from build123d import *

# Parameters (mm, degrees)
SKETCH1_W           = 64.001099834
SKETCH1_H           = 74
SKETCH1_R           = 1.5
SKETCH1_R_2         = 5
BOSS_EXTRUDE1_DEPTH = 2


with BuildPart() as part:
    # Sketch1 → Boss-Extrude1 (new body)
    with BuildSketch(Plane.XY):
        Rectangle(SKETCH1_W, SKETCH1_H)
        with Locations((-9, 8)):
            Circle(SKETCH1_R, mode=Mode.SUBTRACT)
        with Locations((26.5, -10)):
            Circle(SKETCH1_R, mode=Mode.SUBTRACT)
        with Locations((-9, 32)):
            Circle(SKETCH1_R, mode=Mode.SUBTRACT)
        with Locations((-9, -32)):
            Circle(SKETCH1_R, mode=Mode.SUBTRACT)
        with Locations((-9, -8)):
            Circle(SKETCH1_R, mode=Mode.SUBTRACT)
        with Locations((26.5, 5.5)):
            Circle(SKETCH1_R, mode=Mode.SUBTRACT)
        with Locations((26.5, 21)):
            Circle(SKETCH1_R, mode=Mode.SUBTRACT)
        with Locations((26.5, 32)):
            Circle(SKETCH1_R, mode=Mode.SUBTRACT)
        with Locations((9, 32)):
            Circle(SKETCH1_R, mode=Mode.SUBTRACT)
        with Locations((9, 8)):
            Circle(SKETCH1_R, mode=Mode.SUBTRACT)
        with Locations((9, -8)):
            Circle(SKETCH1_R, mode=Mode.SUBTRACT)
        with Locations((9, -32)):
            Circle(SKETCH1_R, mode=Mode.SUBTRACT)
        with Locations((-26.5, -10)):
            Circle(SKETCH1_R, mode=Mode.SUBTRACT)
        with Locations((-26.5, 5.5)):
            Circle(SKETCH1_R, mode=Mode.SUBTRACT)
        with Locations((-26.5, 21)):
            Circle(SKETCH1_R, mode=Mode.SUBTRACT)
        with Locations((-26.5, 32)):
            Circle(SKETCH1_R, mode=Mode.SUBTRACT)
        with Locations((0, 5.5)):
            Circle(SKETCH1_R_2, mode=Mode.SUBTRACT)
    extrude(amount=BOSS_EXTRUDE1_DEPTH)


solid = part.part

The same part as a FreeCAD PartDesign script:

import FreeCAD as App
import Part
import Sketcher

V = App.Vector
Q = App.Units.Quantity


def add_polygon(sketch, points):
    """Adds a closed chain of lines whose ends are joined by coincident constraints."""
    first, n = sketch.GeometryCount, len(points)
    for a, b in zip(points, points[1:] + points[:1]):
        sketch.addGeometry(Part.LineSegment(App.Vector(*a, 0), App.Vector(*b, 0)), False)
    for i in range(n):
        sketch.addConstraint(Sketcher.Constraint("Coincident", first + i, 2, first + (i + 1) % n, 1))

doc = App.newDocument("Part")
body = doc.addObject("PartDesign::Body", "Body")

# Sketch on XY plane
sketch1 = body.newObject("Sketcher::SketchObject", "Sketch")
sketch1.AttachmentSupport = (doc.getObject("XY_Plane"), [""])
sketch1.MapMode = "FlatFace"
add_polygon(sketch1, [(-32.00055, 37), (-32.00055, -37), (32.00055, -37), (32.00055, 37)])  # lines 0-3
sketch1.addGeometry(Part.Circle(V(-9, -32, 0), V(0, 0, 1), 1.5), False)  # 4
sketch1.addGeometry(Part.Circle(V(-26.5, -10, 0), V(0, 0, 1), 1.5), False)  # 5
sketch1.addGeometry(Part.Circle(V(-9, -8, 0), V(0, 0, 1), 1.5), False)  # 6
sketch1.addGeometry(Part.Circle(V(9, -32, 0), V(0, 0, 1), 1.5), False)  # 7
sketch1.addGeometry(Part.Circle(V(9, -8, 0), V(0, 0, 1), 1.5), False)  # 8
sketch1.addGeometry(Part.Circle(V(26.5, -10, 0), V(0, 0, 1), 1.5), False)  # 9
sketch1.addGeometry(Part.Circle(V(-26.5, 5.5, 0), V(0, 0, 1), 1.5), False)  # 10
sketch1.addGeometry(Part.Circle(V(-9, 8, 0), V(0, 0, 1), 1.5), False)  # 11
sketch1.addGeometry(Part.Circle(V(-26.5, 21, 0), V(0, 0, 1), 1.5), False)  # 12
sketch1.addGeometry(Part.Circle(V(-26.5, 32, 0), V(0, 0, 1), 1.5), False)  # 13
sketch1.addGeometry(Part.Circle(V(-9, 32, 0), V(0, 0, 1), 1.5), False)  # 14
sketch1.addGeometry(Part.Circle(V(0, 5.5, 0), V(0, 0, 1), 5), False)  # 15
sketch1.addGeometry(Part.Circle(V(9, 8, 0), V(0, 0, 1), 1.5), False)  # 16
sketch1.addGeometry(Part.Circle(V(26.5, 5.5, 0), V(0, 0, 1), 1.5), False)  # 17
sketch1.addGeometry(Part.Circle(V(9, 32, 0), V(0, 0, 1), 1.5), False)  # 18
sketch1.addGeometry(Part.Circle(V(26.5, 21, 0), V(0, 0, 1), 1.5), False)  # 19
sketch1.addGeometry(Part.Circle(V(26.5, 32, 0), V(0, 0, 1), 1.5), False)  # 20
sketch1.addConstraint(Sketcher.Constraint("Vertical", 0))
sketch1.addConstraint(Sketcher.Constraint("Horizontal", 1))
sketch1.addConstraint(Sketcher.Constraint("Vertical", 2))
sketch1.addConstraint(Sketcher.Constraint("Horizontal", 3))
sketch1.addConstraint(Sketcher.Constraint("Equal", 4, 5))
sketch1.addConstraint(Sketcher.Constraint("Equal", 5, 6))
sketch1.addConstraint(Sketcher.Constraint("Equal", 6, 7))
sketch1.addConstraint(Sketcher.Constraint("Equal", 7, 8))
sketch1.addConstraint(Sketcher.Constraint("Equal", 8, 9))
sketch1.addConstraint(Sketcher.Constraint("Equal", 9, 10))
sketch1.addConstraint(Sketcher.Constraint("Equal", 10, 11))
sketch1.addConstraint(Sketcher.Constraint("Equal", 11, 12))
sketch1.addConstraint(Sketcher.Constraint("Equal", 12, 13))
sketch1.addConstraint(Sketcher.Constraint("Equal", 13, 14))
sketch1.addConstraint(Sketcher.Constraint("Equal", 14, 16))
sketch1.addConstraint(Sketcher.Constraint("Equal", 16, 17))
sketch1.addConstraint(Sketcher.Constraint("Equal", 17, 18))
sketch1.addConstraint(Sketcher.Constraint("Equal", 18, 19))
sketch1.addConstraint(Sketcher.Constraint("Equal", 19, 20))
sketch1.addConstraint(Sketcher.Constraint("Symmetric", 8, 3, 11, 3, -1, 1))
sketch1.addConstraint(Sketcher.Constraint("Symmetric", 7, 3, 14, 3, -1, 1))
sketch1.addConstraint(Sketcher.Constraint("Symmetric", 6, 3, 16, 3, -1, 1))
sketch1.addConstraint(Sketcher.Constraint("Symmetric", 4, 3, 18, 3, -1, 1))
sketch1.addConstraint(Sketcher.Constraint("Symmetric", 0, 2, 2, 2, -1, 1))
sketch1.addConstraint(Sketcher.Constraint("Symmetric", 4, 3, 7, 3, -2))
sketch1.addConstraint(Sketcher.Constraint("Symmetric", 6, 3, 8, 3, -2))
sketch1.addConstraint(Sketcher.Constraint("Symmetric", 5, 3, 9, 3, -2))
sketch1.addConstraint(Sketcher.Constraint("Symmetric", 10, 3, 17, 3, -2))
sketch1.addConstraint(Sketcher.Constraint("Symmetric", 12, 3, 19, 3, -2))
sketch1.addConstraint(Sketcher.Constraint("Symmetric", 13, 3, 20, 3, -2))
sketch1.addConstraint(Sketcher.Constraint("PointOnObject", 15, 3, -2))
sketch1.addConstraint(Sketcher.Constraint("Horizontal", 13, 3, 14, 3))
sketch1.addConstraint(Sketcher.Constraint("Horizontal", 10, 3, 15, 3))
sketch1.addConstraint(Sketcher.Constraint("Vertical", 4, 3, 6, 3))
sketch1.addConstraint(Sketcher.Constraint("Vertical", 5, 3, 10, 3))
sketch1.addConstraint(Sketcher.Constraint("Vertical", 10, 3, 12, 3))
sketch1.addConstraint(Sketcher.Constraint("Vertical", 12, 3, 13, 3))
sketch1.addConstraint(Sketcher.Constraint("Diameter", 4, Q("3 mm")))
sketch1.addConstraint(Sketcher.Constraint("Diameter", 15, Q("10 mm")))
sketch1.addConstraint(Sketcher.Constraint("DistanceY", 0, 2, 0, 1, Q("74 mm")))
sketch1.addConstraint(Sketcher.Constraint("DistanceX", 4, 3, -1, 1, Q("9 mm")))
sketch1.addConstraint(Sketcher.Constraint("DistanceY", 4, 3, -1, 1, Q("32 mm")))
sketch1.addConstraint(Sketcher.Constraint("DistanceY", 5, 3, -1, 1, Q("10 mm")))
sketch1.addConstraint(Sketcher.Constraint("DistanceY", 6, 3, -1, 1, Q("8 mm")))
sketch1.addConstraint(Sketcher.Constraint("DistanceY", -1, 1, 12, 3, Q("21 mm")))
sketch1.addConstraint(Sketcher.Constraint("DistanceX", 5, 3, 9, 3, Q("53 mm")))
sketch1.addConstraint(Sketcher.Constraint("DistanceY", -1, 1, 10, 3, Q("5.5 mm")))
sketch1.addConstraint(Sketcher.Constraint("DistanceX", 1, 1, 1, 2, Q("64.0011 mm")))
pad1 = body.newObject("PartDesign::Pad", "Pad")
pad1.Profile = sketch1
pad1.Length = 2

doc.recompute()
